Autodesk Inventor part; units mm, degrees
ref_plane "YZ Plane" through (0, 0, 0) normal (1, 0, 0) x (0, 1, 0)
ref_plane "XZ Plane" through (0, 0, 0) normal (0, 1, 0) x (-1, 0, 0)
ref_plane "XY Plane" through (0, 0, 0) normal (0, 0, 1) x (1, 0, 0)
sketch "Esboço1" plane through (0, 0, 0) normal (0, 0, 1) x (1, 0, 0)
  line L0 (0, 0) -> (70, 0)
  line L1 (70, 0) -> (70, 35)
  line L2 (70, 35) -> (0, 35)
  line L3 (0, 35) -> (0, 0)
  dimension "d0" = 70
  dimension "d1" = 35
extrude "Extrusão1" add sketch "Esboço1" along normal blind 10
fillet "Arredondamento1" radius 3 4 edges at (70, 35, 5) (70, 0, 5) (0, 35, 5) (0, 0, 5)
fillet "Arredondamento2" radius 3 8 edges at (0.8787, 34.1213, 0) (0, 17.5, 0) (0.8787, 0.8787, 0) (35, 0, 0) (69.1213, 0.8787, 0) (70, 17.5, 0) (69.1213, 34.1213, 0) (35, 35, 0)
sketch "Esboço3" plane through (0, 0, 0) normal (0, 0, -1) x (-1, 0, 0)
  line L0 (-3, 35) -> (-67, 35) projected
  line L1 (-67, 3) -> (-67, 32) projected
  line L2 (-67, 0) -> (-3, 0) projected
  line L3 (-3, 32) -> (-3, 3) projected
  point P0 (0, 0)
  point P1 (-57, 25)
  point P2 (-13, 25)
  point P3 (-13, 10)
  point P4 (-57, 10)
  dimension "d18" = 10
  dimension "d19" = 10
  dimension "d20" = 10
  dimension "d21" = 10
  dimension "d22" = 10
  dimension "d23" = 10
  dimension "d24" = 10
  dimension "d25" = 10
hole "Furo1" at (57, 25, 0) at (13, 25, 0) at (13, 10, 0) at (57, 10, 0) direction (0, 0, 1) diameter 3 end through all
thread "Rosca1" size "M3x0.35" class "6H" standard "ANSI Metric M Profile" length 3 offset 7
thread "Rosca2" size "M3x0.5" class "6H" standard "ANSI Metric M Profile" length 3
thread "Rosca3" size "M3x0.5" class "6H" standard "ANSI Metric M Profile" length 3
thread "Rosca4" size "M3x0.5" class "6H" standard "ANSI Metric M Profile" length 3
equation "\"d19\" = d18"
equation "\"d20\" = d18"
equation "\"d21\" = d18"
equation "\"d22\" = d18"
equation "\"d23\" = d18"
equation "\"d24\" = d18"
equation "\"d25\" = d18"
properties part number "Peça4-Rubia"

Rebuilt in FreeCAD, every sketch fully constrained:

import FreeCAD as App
import Part
import Sketcher


def edges_at(feature, points):
    """Names of the edges that pass closest to the given points."""
    edges = feature.Shape.Edges
    near = lambda p: min(range(len(edges)), key=lambda i: edges[i].distToShape(Part.Vertex(*p))[0])
    return sorted({f"Edge{near(p) + 1}" for p in points})

doc = App.newDocument("Part")
body = doc.addObject("PartDesign::Body", "Body")

# Sketch on XY plane
sketch1 = doc.addObject("Sketcher::SketchObject", "Sketch")
body.addObject(sketch1)
sketch1.AttachmentSupport = (doc.XY_Plane, [""])
sketch1.MapMode = "FlatFace"
sketch1.addGeometry([
    Part.LineSegment(App.Vector(0, 35, 0), App.Vector(0, 0, 0)),
    Part.LineSegment(App.Vector(0, 0, 0), App.Vector(70, 0, 0)),
    Part.LineSegment(App.Vector(70, 0, 0), App.Vector(70, 35, 0)),
    Part.LineSegment(App.Vector(70, 35, 0), App.Vector(0, 35, 0)),
], False)
sketch1.addConstraint([
    Sketcher.Constraint("Coincident", 0, 2, 1, 1),
    Sketcher.Constraint("Coincident", 1, 2, 2, 1),
    Sketcher.Constraint("Coincident", 2, 2, 3, 1),
    Sketcher.Constraint("Coincident", 3, 2, 0, 1),
    Sketcher.Constraint("Vertical", 0),
    Sketcher.Constraint("Horizontal", 1),
    Sketcher.Constraint("Vertical", 2),
    Sketcher.Constraint("Horizontal", 3),
    Sketcher.Constraint("Coincident", 0, 2, -1, 1),
    Sketcher.Constraint("DistanceX", 1, 1, 1, 2, 70.0),
    Sketcher.Constraint("DistanceY", 0, 2, 0, 1, 35.0),
])
pad1 = doc.addObject("PartDesign::Pad", "Pad")
body.addObject(pad1)
pad1.Profile = sketch1
pad1.Length = 10
doc.recompute()

fillet = doc.addObject("PartDesign::Fillet", "Fillet")
body.addObject(fillet)
fillet.Base = (pad1, edges_at(pad1, [
    (70, 35, 5),
    (70, 0, 5),
    (0, 35, 5),
    (0, 0, 5),
]))
fillet.Radius = 3
doc.recompute()

fillet2 = doc.addObject("PartDesign::Fillet", "Fillet001")
body.addObject(fillet2)
fillet2.Base = (fillet, edges_at(fillet, [
    (0.879, 34.121, 0),
    (0, 17.5, 0),
    (0.879, 0.879, 0),
    (35, 0, 0),
    (69.121, 0.879, 0),
    (70, 17.5, 0),
    (69.121, 34.121, 0),
    (35, 35, 0),
]))
fillet2.Radius = 3

# Sketch on XY plane
sketch2 = doc.addObject("Sketcher::SketchObject", "Sketch001")
body.addObject(sketch2)
sketch2.AttachmentSupport = (doc.XY_Plane, [""])
sketch2.MapMode = "FlatFace"
sketch2.addGeometry([
    Part.Circle(App.Vector(57, 25, 0), App.Vector(0, 0, 1), 1.5),
    Part.Circle(App.Vector(13, 25, 0), App.Vector(0, 0, 1), 1.5),
    Part.Circle(App.Vector(13, 10, 0), App.Vector(0, 0, 1), 1.5),
    Part.Circle(App.Vector(57, 10, 0), App.Vector(0, 0, 1), 1.5),
], False)
sketch2.addConstraint([
    Sketcher.Constraint("Equal", 0, 1),
    Sketcher.Constraint("Equal", 1, 2),
    Sketcher.Constraint("Equal", 2, 3),
    Sketcher.Constraint("Horizontal", 0, 3, 1, 3),
    Sketcher.Constraint("Horizontal", 2, 3, 3, 3),
    Sketcher.Constraint("Vertical", 1, 3, 2, 3),
    Sketcher.Constraint("Vertical", 0, 3, 3, 3),
    Sketcher.Constraint("Diameter", 0, 3.0),
    Sketcher.Constraint("DistanceX", -1, 1, 0, 3, 57.0),
    Sketcher.Constraint("DistanceY", -1, 1, 0, 3, 25.0),
    Sketcher.Constraint("DistanceX", -1, 1, 1, 3, 13.0),
    Sketcher.Constraint("DistanceY", -1, 1, 2, 3, 10.0),
])
doc.recompute()
hole = doc.addObject("PartDesign::Hole", "Hole")
body.addObject(hole)
hole.Profile = sketch2
hole.ThreadType = "None"
hole.Diameter = 3
hole.DepthType = "ThroughAll"
hole.Reversed = True

doc.recompute()
